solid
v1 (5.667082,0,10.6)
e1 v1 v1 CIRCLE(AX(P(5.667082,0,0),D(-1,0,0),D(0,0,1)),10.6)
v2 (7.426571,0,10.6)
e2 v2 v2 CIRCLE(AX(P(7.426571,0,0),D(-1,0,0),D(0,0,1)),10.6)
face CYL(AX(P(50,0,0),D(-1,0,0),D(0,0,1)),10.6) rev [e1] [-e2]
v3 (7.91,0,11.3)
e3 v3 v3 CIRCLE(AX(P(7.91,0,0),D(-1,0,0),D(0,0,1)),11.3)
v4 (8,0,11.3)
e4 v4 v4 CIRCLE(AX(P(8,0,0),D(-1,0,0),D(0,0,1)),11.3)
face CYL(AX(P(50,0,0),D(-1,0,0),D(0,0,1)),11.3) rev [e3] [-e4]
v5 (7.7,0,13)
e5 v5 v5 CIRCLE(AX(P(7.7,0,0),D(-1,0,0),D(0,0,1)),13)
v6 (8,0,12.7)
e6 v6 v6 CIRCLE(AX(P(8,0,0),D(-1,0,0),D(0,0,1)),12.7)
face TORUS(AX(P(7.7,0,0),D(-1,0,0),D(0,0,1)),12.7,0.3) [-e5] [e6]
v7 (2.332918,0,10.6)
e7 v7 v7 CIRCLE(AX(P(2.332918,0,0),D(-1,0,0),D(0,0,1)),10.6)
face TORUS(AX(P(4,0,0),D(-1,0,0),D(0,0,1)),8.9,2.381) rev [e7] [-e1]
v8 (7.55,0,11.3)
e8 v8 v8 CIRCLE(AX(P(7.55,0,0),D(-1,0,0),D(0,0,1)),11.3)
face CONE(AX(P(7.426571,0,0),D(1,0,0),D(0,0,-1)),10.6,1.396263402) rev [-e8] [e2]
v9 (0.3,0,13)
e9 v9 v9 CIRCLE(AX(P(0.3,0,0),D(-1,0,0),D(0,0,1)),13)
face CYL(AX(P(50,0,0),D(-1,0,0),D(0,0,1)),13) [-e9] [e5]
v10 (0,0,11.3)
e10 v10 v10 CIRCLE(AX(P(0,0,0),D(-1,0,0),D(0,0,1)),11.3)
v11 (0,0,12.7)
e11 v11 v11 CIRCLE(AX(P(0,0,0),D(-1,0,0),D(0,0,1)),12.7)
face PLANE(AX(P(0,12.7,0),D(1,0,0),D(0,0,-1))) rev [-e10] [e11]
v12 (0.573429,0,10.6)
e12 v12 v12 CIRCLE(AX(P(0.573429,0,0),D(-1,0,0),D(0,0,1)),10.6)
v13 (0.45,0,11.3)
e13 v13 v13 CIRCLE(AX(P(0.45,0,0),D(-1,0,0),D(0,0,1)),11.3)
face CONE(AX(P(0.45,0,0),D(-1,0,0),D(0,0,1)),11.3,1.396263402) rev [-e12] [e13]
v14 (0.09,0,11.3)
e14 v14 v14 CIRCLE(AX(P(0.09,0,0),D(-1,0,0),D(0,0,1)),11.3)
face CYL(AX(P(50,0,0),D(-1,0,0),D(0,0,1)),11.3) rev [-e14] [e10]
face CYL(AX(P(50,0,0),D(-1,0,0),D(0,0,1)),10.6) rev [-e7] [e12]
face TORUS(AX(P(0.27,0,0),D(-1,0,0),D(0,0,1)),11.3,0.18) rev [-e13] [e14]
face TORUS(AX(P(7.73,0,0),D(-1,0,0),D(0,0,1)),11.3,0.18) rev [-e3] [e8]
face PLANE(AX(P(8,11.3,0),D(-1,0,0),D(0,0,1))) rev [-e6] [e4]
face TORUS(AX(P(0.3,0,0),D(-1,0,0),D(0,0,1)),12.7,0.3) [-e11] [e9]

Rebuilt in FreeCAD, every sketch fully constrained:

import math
import FreeCAD as App
import Part
import Sketcher
from FreeCAD import Vector
Q = App.Units.Quantity

doc = App.newDocument("Part")
params = doc.addObject("Spreadsheet::Sheet", "Params")
for row, (alias, value) in enumerate([
    ("sketch1_radius", "0.3 mm"),
    ("sketch1_radius2", "0.18 mm"),
    ("sketch1_width", "7.4 mm"),
    ("sketch1_height", "1.4 mm"),
    ("sketch1_width2", "0.09 mm"),
    ("revolution_angle", "360 deg"),
], start=1):
    params.set(f"A{row}", alias)
    params.set(f"B{row}", "=" + value)
    params.setAlias(f"B{row}", alias)

body = doc.addObject("PartDesign::Body", "Body")

# Sketch on XY plane
sketch1 = body.newObject("Sketcher::SketchObject", "Sketch")
sketch1.AttachmentSupport = (doc.getObject("XY_Plane"), [""])
sketch1.MapMode = "FlatFace"
sketch1.addGeometry([
    Part.LineSegment(Vector(0, 11.3, 0), Vector(0.09, 11.3, 0)),  # 0
    Part.ArcOfCircle(Part.Circle(Vector(0.27, 11.3, 0), Vector(0, 0, 1), 0.18), math.radians(0), math.radians(180)),  # 1
    Part.LineSegment(Vector(0.45, 11.3, 0), Vector(0.57, 10.6, 0)),  # 2
    Part.LineSegment(Vector(0.57, 10.6, 0), Vector(2.33, 10.6, 0)),  # 3
    Part.ArcOfCircle(Part.Circle(Vector(4, 8.9, 0), Vector(0, 0, 1), 2.38), math.radians(46), math.radians(134)),  # 4
    Part.LineSegment(Vector(5.67, 10.6, 0), Vector(7.43, 10.6, 0)),  # 5
    Part.LineSegment(Vector(7.43, 10.6, 0), Vector(7.55, 11.3, 0)),  # 6
    Part.ArcOfCircle(Part.Circle(Vector(7.73, 11.3, 0), Vector(0, 0, 1), 0.18), math.radians(0), math.radians(180)),  # 7
    Part.LineSegment(Vector(7.91, 11.3, 0), Vector(8, 11.3, 0)),  # 8
    Part.LineSegment(Vector(8, 11.3, 0), Vector(8, 12.7, 0)),  # 9
    Part.ArcOfCircle(Part.Circle(Vector(7.7, 12.7, 0), Vector(0, 0, 1), 0.3), math.radians(0), math.radians(90)),  # 10
    Part.LineSegment(Vector(7.7, 13, 0), Vector(0.3, 13, 0)),  # 11
    Part.ArcOfCircle(Part.Circle(Vector(0.3, 12.7, 0), Vector(0, 0, 1), 0.3), math.radians(90), math.radians(180)),  # 12
    Part.LineSegment(Vector(0, 12.7, 0), Vector(0, 11.3, 0)),  # 13
], False)
sketch1.addConstraint([
    Sketcher.Constraint("Coincident", 0, 2, 1, 2),
    Sketcher.Constraint("Coincident", 1, 1, 2, 1),
    Sketcher.Constraint("Coincident", 2, 2, 3, 1),
    Sketcher.Constraint("Coincident", 3, 2, 4, 2),
    Sketcher.Constraint("Coincident", 4, 1, 5, 1),
    Sketcher.Constraint("Coincident", 5, 2, 6, 1),
    Sketcher.Constraint("Coincident", 6, 2, 7, 2),
    Sketcher.Constraint("Coincident", 7, 1, 8, 1),
    Sketcher.Constraint("Coincident", 8, 2, 9, 1),
    Sketcher.Constraint("Tangent", 9, 2, 10, 1),
    Sketcher.Constraint("Tangent", 10, 2, 11, 1),
    Sketcher.Constraint("Tangent", 11, 2, 12, 1),
    Sketcher.Constraint("Tangent", 12, 2, 13, 1),
    Sketcher.Constraint("Coincident", 13, 2, 0, 1),
    Sketcher.Constraint("Horizontal", 0),
    Sketcher.Constraint("Horizontal", 3),
    Sketcher.Constraint("Horizontal", 5),
    Sketcher.Constraint("Horizontal", 8),
    Sketcher.Constraint("Vertical", 9),
    Sketcher.Constraint("Horizontal", 11),
    Sketcher.Constraint("Vertical", 13),
    Sketcher.Constraint("Equal", 1, 7),
    Sketcher.Constraint("Equal", 10, 12),
    Sketcher.Constraint("PointOnObject", 12, 2, -2),
    Sketcher.Constraint("Horizontal", 1, 3, 7, 3),
    Sketcher.Constraint("Horizontal", 7, 3, 0, 2),
    Sketcher.Constraint("Horizontal", 0, 2, 1, 1),
    Sketcher.Constraint("Horizontal", 3, 2, 4, 1),
    Sketcher.Constraint("Horizontal", 1, 1, 6, 2),
    Sketcher.Constraint("Horizontal", 6, 2, 7, 1),
    Sketcher.Constraint("Equal", 3, 5),
    Sketcher.Constraint("Equal", 0, 8),
    Sketcher.Constraint("Equal", 2, 6),
    Sketcher.Constraint("Radius", 10, Q("0.3 mm")),
    Sketcher.Constraint("Angle", 2, Q("-80 deg")),
    Sketcher.Constraint("Radius", 1, Q("0.18 mm")),
    Sketcher.Constraint("DistanceX", 11, 2, 11, 1, Q("7.4 mm")),
    Sketcher.Constraint("DistanceY", 9, 1, 9, 2, Q("1.4 mm")),
    Sketcher.Constraint("DistanceY", -1, 1, 10, 2, Q("13 mm")),
    Sketcher.Constraint("Radius", 4, Q("2.381 mm")),
    Sketcher.Constraint("DistanceX", 0, 1, 0, 2, Q("0.09 mm")),
    Sketcher.Constraint("DistanceY", -1, 1, 4, 3, Q("8.9 mm")),
    Sketcher.Constraint("DistanceY", -1, 1, 2, 2, Q("10.6 mm")),
])
sketch1.setExpression("Constraints[33]", "Params.sketch1_radius")
sketch1.setExpression("Constraints[35]", "Params.sketch1_radius2")
sketch1.setExpression("Constraints[36]", "Params.sketch1_width")
sketch1.setExpression("Constraints[37]", "Params.sketch1_height")
sketch1.setExpression("Constraints[40]", "Params.sketch1_width2")
revolution = body.newObject("PartDesign::Revolution", "Revolution")
revolution.Profile = sketch1
revolution.ReferenceAxis = (sketch1, ["H_Axis"])
revolution.setExpression("Angle", "Params.revolution_angle")

doc.recompute()
